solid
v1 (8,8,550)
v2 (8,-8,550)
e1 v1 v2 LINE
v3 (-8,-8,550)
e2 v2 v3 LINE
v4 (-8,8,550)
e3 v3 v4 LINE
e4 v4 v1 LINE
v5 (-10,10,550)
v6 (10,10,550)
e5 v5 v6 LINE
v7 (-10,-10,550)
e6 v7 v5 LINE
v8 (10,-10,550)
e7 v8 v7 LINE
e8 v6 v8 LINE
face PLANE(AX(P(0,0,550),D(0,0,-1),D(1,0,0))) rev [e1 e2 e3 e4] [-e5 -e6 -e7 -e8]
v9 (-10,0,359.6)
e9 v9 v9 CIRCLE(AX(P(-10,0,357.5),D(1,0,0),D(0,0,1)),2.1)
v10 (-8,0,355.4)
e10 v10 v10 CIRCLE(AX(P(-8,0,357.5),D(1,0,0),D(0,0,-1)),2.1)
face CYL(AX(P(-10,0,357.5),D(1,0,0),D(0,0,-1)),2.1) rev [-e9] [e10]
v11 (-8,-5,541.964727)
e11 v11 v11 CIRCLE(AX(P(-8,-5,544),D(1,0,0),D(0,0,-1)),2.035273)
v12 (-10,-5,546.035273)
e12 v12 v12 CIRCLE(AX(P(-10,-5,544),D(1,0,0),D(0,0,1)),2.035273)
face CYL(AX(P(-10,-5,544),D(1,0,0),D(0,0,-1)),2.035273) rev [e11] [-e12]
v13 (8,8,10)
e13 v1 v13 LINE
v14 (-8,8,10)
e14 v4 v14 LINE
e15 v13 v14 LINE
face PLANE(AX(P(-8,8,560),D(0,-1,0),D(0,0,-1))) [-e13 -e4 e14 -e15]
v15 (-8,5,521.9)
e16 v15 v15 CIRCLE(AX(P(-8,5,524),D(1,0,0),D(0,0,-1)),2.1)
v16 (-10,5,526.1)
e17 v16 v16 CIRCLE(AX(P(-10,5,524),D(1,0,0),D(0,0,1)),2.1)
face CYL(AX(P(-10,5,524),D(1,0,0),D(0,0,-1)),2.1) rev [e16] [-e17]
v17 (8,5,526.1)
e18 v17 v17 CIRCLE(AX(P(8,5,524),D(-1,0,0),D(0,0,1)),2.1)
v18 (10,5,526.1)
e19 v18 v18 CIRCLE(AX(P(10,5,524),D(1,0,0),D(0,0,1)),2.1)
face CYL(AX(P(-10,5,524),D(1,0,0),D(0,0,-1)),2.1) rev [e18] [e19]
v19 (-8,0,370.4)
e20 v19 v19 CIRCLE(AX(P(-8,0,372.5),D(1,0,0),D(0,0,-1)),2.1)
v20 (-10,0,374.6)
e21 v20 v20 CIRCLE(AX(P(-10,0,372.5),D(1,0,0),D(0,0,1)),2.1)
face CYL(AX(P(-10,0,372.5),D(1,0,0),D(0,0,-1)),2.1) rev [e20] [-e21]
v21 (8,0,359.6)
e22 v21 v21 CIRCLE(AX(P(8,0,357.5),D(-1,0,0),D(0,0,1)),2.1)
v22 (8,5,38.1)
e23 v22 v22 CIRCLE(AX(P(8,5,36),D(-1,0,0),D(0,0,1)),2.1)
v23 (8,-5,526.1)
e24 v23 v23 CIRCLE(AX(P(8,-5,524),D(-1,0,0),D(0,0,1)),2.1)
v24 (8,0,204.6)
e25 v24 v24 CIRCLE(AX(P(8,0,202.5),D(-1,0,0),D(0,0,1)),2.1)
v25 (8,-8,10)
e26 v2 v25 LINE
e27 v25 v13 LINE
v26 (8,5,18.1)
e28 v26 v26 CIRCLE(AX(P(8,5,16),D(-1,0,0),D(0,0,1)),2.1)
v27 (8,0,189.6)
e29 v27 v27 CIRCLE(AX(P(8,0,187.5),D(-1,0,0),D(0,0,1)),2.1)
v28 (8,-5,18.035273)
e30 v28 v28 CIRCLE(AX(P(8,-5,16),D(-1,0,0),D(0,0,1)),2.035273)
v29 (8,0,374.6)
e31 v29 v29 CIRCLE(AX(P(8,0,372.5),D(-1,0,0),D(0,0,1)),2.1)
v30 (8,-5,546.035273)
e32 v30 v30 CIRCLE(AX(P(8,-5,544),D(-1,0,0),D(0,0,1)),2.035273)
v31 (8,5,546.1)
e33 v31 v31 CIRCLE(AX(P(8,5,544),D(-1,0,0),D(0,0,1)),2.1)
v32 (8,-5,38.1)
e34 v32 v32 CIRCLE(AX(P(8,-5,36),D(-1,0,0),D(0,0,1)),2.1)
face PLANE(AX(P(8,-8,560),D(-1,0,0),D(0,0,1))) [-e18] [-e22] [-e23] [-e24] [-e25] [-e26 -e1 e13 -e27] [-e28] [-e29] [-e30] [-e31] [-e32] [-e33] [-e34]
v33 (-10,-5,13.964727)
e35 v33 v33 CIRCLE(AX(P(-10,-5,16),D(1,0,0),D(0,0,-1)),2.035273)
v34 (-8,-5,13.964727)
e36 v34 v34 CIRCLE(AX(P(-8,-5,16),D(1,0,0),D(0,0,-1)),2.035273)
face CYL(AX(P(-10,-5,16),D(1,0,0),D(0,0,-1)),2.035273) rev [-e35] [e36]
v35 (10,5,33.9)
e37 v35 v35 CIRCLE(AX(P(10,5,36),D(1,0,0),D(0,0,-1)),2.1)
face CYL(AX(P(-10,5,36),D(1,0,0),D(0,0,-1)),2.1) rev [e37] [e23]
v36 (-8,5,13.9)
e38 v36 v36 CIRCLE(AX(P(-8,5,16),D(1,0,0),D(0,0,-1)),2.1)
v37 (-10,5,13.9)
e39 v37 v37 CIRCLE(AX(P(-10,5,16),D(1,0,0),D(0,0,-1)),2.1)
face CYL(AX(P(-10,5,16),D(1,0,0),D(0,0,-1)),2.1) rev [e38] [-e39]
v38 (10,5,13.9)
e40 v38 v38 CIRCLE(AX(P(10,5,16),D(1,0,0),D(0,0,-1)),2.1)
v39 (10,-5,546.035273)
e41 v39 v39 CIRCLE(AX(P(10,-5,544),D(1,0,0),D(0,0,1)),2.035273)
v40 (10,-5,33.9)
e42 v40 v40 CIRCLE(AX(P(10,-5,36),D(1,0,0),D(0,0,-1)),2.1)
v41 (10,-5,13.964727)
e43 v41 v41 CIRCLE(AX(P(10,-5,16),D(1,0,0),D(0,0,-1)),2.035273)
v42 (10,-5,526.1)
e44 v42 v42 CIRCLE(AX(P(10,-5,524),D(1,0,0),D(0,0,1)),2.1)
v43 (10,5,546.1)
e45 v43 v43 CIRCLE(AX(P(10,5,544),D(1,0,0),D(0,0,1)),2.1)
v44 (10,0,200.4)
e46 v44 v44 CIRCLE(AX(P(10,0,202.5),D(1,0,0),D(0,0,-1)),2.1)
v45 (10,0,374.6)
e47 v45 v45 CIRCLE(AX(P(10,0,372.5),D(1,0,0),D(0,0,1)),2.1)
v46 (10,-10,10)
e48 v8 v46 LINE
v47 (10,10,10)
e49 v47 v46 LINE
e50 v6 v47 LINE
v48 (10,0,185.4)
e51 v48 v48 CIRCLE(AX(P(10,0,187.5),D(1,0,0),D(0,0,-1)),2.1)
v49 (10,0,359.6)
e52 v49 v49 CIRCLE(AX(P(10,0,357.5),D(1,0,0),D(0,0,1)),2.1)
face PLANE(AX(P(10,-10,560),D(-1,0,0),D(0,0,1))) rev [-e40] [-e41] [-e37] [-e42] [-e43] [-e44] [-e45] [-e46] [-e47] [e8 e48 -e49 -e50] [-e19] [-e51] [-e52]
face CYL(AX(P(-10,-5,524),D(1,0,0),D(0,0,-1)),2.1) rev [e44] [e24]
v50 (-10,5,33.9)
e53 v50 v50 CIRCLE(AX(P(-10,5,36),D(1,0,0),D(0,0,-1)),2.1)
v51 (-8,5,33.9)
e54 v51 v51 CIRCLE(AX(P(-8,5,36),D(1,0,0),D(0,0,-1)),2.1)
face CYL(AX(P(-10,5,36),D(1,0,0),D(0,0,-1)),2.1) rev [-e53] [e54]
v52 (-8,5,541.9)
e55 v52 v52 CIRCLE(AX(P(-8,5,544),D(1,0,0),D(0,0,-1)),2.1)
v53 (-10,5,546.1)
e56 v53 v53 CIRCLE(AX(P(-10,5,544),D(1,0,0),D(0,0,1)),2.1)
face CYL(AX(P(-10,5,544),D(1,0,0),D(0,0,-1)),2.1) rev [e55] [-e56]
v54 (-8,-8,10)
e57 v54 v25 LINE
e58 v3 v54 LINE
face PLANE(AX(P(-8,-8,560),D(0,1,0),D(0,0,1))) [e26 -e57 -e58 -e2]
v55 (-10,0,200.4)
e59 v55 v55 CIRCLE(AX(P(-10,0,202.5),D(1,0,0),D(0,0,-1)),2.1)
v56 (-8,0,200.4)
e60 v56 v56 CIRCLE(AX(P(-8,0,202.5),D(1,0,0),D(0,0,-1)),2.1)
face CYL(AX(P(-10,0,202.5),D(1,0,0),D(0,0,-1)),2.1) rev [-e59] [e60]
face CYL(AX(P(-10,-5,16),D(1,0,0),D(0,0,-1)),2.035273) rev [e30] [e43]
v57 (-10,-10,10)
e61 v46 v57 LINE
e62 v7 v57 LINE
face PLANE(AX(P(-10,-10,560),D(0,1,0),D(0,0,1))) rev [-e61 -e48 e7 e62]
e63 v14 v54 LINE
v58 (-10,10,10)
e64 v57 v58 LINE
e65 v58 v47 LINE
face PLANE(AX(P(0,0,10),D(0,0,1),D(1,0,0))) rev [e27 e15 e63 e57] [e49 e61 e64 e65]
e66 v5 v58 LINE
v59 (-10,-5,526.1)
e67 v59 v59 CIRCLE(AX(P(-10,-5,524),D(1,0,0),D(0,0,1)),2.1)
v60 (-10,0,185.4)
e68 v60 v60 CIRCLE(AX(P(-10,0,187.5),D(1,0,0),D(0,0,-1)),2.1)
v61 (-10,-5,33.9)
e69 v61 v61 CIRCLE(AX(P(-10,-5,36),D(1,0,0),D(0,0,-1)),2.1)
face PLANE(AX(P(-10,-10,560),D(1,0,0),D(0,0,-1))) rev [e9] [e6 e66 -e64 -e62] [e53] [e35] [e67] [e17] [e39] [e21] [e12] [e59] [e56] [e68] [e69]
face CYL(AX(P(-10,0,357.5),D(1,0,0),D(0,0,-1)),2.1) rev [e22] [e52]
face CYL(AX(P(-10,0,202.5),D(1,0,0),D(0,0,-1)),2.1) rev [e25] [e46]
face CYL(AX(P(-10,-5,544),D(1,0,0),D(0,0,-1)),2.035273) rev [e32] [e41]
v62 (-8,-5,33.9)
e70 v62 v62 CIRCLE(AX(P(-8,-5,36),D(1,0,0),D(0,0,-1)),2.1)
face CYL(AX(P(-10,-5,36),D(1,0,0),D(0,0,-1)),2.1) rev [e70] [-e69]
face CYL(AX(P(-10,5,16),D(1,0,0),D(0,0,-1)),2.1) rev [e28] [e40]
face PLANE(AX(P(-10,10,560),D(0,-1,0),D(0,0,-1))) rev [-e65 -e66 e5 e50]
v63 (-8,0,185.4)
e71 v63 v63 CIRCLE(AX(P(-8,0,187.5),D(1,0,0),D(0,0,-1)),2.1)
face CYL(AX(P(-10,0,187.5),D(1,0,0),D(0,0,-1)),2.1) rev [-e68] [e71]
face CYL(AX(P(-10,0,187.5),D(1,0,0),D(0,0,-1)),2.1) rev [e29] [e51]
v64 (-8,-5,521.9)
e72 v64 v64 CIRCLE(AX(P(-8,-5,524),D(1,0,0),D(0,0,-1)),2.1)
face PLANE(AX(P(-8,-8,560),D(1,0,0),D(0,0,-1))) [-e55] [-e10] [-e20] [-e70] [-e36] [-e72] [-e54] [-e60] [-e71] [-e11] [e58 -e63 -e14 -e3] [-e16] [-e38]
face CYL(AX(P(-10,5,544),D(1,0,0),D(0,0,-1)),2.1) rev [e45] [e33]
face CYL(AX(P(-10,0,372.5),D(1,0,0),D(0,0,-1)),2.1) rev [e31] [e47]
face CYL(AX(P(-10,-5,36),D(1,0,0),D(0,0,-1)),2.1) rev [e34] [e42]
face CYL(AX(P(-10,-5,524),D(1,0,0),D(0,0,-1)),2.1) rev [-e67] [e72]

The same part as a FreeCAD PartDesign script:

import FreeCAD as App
import Part
import Sketcher


def add_polygon(sketch, points):
    """Adds a closed chain of lines whose ends are joined by coincident constraints."""
    first, n = sketch.GeometryCount, len(points)
    for a, b in zip(points, points[1:] + points[:1]):
        sketch.addGeometry(Part.LineSegment(App.Vector(*a, 0), App.Vector(*b, 0)), False)
    for i in range(n):
        sketch.addConstraint(Sketcher.Constraint("Coincident", first + i, 2, first + (i + 1) % n, 1))

doc = App.newDocument("Part")
params = doc.addObject("Spreadsheet::Sheet", "Params")
for row, (alias, value) in enumerate([
    ("sketch1_width", "20 mm"),
    ("sketch1_width2", "16 mm"),
    ("pad1_length", "560 mm"),
    ("sketch2_width", "20 mm"),
    ("pocket1_length", "10 mm"),
    ("sketch3_diameter", "4.2 mm"),
    ("sketch4_diameter", "4.2 mm"),
], start=1):
    params.set(f"A{row}", alias)
    params.set(f"B{row}", "=" + value)
    params.setAlias(f"B{row}", alias)

body = doc.addObject("PartDesign::Body", "Body")

sketch1 = body.newObject("Sketcher::SketchObject", "Sketch")
sketch1.AttachmentSupport = (doc.getObject("XY_Plane"), [""])
sketch1.MapMode = "FlatFace"
add_polygon(sketch1, [(-10, 10), (-10, -10), (10, -10), (10, 10)])
add_polygon(sketch1, [(8, -8), (-8, -8), (-8, 8), (8, 8)])
sketch1.addConstraint([
    Sketcher.Constraint("Vertical", 0),
    Sketcher.Constraint("Horizontal", 1),
    Sketcher.Constraint("Vertical", 2),
    Sketcher.Constraint("Horizontal", 3),
    Sketcher.Constraint("Horizontal", 4),
    Sketcher.Constraint("Vertical", 5),
    Sketcher.Constraint("Horizontal", 6),
    Sketcher.Constraint("Vertical", 7),
    Sketcher.Constraint("Symmetric", 0, 2, 2, 2, -1, 1),
    Sketcher.Constraint("Symmetric", 4, 2, 6, 2, -1, 1),
    Sketcher.Constraint("Equal", 3, 0),
    Sketcher.Constraint("Equal", 6, 5),
    Sketcher.Constraint("DistanceX", 1, 1, 1, 2, 20.0),
    Sketcher.Constraint("DistanceX", 4, 2, 4, 1, 16.0),
])
sketch1.setExpression("Constraints[20]", "Params.sketch1_width")
sketch1.setExpression("Constraints[21]", "Params.sketch1_width2")
pad1 = body.newObject("PartDesign::Pad", "Pad")
pad1.Profile = sketch1
pad1.setExpression("Length", "Params.pad1_length")

sketch2 = body.newObject("Sketcher::SketchObject", "Sketch001")
sketch2.AttachmentSupport = (doc.getObject("XY_Plane"), [""])
sketch2.MapMode = "FlatFace"
add_polygon(sketch2, [(10, 10), (10, -10), (-10, -10), (-10, 10)])
sketch2.addConstraint([
    Sketcher.Constraint("Vertical", 0),
    Sketcher.Constraint("Horizontal", 1),
    Sketcher.Constraint("Vertical", 2),
    Sketcher.Constraint("Horizontal", 3),
    Sketcher.Constraint("Symmetric", 0, 2, 2, 2, -1, 1),
    Sketcher.Constraint("Equal", 3, 0),
    Sketcher.Constraint("DistanceX", 1, 2, 1, 1, 20.0),
])
sketch2.setExpression("Constraints[10]", "Params.sketch2_width")
pocket1 = body.newObject("PartDesign::Pocket", "Pocket")
pocket1.Profile = sketch2
pocket1.setExpression("Length", "Params.pocket1_length")
pocket1.Reversed = True
doc.recompute()

datumplane = body.newObject("PartDesign::Plane", "DatumPlane")
datumplane.AttachmentSupport = (doc.getObject("XY_Plane"), [""])
datumplane.MapMode = "FlatFace"
datumplane.AttachmentOffset = App.Placement(App.Vector(0, 0, 280), App.Rotation())
mirrored = body.newObject("PartDesign::Mirrored", "Mirrored")
mirrored.Originals = [pocket1]
mirrored.MirrorPlane = (datumplane, [""])
body.Tip = mirrored

sketch3 = body.newObject("Sketcher::SketchObject", "Sketch002")
sketch3.AttachmentSupport = (doc.getObject("YZ_Plane"), [""])
sketch3.MapMode = "FlatFace"
sketch3.AttachmentOffset = App.Placement(App.Vector(0, 0, 10), App.Rotation())
sketch3.addGeometry([
    Part.Circle(App.Vector(5, 16, 0), App.Vector(0, 0, 1), 2.1),
    Part.Circle(App.Vector(-5, 16, 0), App.Vector(0, 0, 1), 2),
    Part.Circle(App.Vector(5, 36, 0), App.Vector(0, 0, 1), 2.1),
    Part.Circle(App.Vector(-5, 36, 0), App.Vector(0, 0, 1), 2.1),
    Part.Circle(App.Vector(5, 544, 0), App.Vector(0, 0, 1), 2.1),
    Part.Circle(App.Vector(-5, 544, 0), App.Vector(0, 0, 1), 2),
    Part.Circle(App.Vector(-5, 524, 0), App.Vector(0, 0, 1), 2.1),
    Part.Circle(App.Vector(5, 524, 0), App.Vector(0, 0, 1), 2.1),
], False)
sketch3.addConstraint([
    Sketcher.Constraint("Equal", 0, 2),
    Sketcher.Constraint("Equal", 2, 3),
    Sketcher.Constraint("Equal", 3, 4),
    Sketcher.Constraint("Equal", 1, 5),
    Sketcher.Constraint("Equal", 4, 6),
    Sketcher.Constraint("Equal", 6, 7),
    Sketcher.Constraint("Symmetric", 0, 3, 1, 3, -2),
    Sketcher.Constraint("Symmetric", 2, 3, 3, 3, -2),
    Sketcher.Constraint("Symmetric", 4, 3, 5, 3, -2),
    Sketcher.Constraint("Symmetric", 6, 3, 7, 3, -2),
    Sketcher.Constraint("Vertical", 0, 3, 2, 3),
    Sketcher.Constraint("Vertical", 2, 3, 4, 3),
    Sketcher.Constraint("Vertical", 5, 3, 6, 3),
    Sketcher.Constraint("Diameter", 0, 4.2),
    Sketcher.Constraint("DistanceX", -1, 1, 0, 3, 5.0),
    Sketcher.Constraint("DistanceY", -1, 1, 0, 3, 16.0),
    Sketcher.Constraint("DistanceY", -1, 1, 2, 3, 36.0),
    Sketcher.Constraint("DistanceY", -1, 1, 4, 3, 544.0),
    Sketcher.Constraint("DistanceY", -1, 1, 6, 3, 524.0),
    Sketcher.Constraint("Diameter", 1, 4.070546),
])
sketch3.setExpression("Constraints[13]", "Params.sketch3_diameter")
pocket2 = body.newObject("PartDesign::Pocket", "Pocket001")
pocket2.Profile = sketch3
pocket2.Type = "ThroughAll"

sketch4 = body.newObject("Sketcher::SketchObject", "Sketch003")
sketch4.AttachmentSupport = (doc.getObject("YZ_Plane"), [""])
sketch4.MapMode = "FlatFace"
sketch4.AttachmentOffset = App.Placement(App.Vector(0, 0, 10), App.Rotation())
sketch4.addGeometry([
    Part.Circle(App.Vector(0, 187.5, 0), App.Vector(0, 0, 1), 2.1),
    Part.Circle(App.Vector(0, 202.5, 0), App.Vector(0, 0, 1), 2.1),
    Part.Circle(App.Vector(0, 357.5, 0), App.Vector(0, 0, 1), 2.1),
    Part.Circle(App.Vector(0, 372.5, 0), App.Vector(0, 0, 1), 2.1),
], False)
sketch4.addConstraint([
    Sketcher.Constraint("Equal", 0, 1),
    Sketcher.Constraint("Equal", 1, 2),
    Sketcher.Constraint("Equal", 2, 3),
    Sketcher.Constraint("PointOnObject", 0, 3, -2),
    Sketcher.Constraint("PointOnObject", 1, 3, -2),
    Sketcher.Constraint("PointOnObject", 2, 3, -2),
    Sketcher.Constraint("PointOnObject", 3, 3, -2),
    Sketcher.Constraint("Diameter", 0, 4.2),
    Sketcher.Constraint("DistanceY", 0, 3, 1, 3, 15.0),
    Sketcher.Constraint("DistanceY", 1, 3, 2, 3, 155.0),
    Sketcher.Constraint("DistanceY", 2, 3, 3, 3, 15.0),
    Sketcher.Constraint("DistanceY", -1, 1, 0, 3, 187.5),
])
sketch4.setExpression("Constraints[7]", "Params.sketch4_diameter")
pocket3 = body.newObject("PartDesign::Pocket", "Pocket002")
pocket3.Profile = sketch4
pocket3.Type = "ThroughAll"

doc.recompute()
